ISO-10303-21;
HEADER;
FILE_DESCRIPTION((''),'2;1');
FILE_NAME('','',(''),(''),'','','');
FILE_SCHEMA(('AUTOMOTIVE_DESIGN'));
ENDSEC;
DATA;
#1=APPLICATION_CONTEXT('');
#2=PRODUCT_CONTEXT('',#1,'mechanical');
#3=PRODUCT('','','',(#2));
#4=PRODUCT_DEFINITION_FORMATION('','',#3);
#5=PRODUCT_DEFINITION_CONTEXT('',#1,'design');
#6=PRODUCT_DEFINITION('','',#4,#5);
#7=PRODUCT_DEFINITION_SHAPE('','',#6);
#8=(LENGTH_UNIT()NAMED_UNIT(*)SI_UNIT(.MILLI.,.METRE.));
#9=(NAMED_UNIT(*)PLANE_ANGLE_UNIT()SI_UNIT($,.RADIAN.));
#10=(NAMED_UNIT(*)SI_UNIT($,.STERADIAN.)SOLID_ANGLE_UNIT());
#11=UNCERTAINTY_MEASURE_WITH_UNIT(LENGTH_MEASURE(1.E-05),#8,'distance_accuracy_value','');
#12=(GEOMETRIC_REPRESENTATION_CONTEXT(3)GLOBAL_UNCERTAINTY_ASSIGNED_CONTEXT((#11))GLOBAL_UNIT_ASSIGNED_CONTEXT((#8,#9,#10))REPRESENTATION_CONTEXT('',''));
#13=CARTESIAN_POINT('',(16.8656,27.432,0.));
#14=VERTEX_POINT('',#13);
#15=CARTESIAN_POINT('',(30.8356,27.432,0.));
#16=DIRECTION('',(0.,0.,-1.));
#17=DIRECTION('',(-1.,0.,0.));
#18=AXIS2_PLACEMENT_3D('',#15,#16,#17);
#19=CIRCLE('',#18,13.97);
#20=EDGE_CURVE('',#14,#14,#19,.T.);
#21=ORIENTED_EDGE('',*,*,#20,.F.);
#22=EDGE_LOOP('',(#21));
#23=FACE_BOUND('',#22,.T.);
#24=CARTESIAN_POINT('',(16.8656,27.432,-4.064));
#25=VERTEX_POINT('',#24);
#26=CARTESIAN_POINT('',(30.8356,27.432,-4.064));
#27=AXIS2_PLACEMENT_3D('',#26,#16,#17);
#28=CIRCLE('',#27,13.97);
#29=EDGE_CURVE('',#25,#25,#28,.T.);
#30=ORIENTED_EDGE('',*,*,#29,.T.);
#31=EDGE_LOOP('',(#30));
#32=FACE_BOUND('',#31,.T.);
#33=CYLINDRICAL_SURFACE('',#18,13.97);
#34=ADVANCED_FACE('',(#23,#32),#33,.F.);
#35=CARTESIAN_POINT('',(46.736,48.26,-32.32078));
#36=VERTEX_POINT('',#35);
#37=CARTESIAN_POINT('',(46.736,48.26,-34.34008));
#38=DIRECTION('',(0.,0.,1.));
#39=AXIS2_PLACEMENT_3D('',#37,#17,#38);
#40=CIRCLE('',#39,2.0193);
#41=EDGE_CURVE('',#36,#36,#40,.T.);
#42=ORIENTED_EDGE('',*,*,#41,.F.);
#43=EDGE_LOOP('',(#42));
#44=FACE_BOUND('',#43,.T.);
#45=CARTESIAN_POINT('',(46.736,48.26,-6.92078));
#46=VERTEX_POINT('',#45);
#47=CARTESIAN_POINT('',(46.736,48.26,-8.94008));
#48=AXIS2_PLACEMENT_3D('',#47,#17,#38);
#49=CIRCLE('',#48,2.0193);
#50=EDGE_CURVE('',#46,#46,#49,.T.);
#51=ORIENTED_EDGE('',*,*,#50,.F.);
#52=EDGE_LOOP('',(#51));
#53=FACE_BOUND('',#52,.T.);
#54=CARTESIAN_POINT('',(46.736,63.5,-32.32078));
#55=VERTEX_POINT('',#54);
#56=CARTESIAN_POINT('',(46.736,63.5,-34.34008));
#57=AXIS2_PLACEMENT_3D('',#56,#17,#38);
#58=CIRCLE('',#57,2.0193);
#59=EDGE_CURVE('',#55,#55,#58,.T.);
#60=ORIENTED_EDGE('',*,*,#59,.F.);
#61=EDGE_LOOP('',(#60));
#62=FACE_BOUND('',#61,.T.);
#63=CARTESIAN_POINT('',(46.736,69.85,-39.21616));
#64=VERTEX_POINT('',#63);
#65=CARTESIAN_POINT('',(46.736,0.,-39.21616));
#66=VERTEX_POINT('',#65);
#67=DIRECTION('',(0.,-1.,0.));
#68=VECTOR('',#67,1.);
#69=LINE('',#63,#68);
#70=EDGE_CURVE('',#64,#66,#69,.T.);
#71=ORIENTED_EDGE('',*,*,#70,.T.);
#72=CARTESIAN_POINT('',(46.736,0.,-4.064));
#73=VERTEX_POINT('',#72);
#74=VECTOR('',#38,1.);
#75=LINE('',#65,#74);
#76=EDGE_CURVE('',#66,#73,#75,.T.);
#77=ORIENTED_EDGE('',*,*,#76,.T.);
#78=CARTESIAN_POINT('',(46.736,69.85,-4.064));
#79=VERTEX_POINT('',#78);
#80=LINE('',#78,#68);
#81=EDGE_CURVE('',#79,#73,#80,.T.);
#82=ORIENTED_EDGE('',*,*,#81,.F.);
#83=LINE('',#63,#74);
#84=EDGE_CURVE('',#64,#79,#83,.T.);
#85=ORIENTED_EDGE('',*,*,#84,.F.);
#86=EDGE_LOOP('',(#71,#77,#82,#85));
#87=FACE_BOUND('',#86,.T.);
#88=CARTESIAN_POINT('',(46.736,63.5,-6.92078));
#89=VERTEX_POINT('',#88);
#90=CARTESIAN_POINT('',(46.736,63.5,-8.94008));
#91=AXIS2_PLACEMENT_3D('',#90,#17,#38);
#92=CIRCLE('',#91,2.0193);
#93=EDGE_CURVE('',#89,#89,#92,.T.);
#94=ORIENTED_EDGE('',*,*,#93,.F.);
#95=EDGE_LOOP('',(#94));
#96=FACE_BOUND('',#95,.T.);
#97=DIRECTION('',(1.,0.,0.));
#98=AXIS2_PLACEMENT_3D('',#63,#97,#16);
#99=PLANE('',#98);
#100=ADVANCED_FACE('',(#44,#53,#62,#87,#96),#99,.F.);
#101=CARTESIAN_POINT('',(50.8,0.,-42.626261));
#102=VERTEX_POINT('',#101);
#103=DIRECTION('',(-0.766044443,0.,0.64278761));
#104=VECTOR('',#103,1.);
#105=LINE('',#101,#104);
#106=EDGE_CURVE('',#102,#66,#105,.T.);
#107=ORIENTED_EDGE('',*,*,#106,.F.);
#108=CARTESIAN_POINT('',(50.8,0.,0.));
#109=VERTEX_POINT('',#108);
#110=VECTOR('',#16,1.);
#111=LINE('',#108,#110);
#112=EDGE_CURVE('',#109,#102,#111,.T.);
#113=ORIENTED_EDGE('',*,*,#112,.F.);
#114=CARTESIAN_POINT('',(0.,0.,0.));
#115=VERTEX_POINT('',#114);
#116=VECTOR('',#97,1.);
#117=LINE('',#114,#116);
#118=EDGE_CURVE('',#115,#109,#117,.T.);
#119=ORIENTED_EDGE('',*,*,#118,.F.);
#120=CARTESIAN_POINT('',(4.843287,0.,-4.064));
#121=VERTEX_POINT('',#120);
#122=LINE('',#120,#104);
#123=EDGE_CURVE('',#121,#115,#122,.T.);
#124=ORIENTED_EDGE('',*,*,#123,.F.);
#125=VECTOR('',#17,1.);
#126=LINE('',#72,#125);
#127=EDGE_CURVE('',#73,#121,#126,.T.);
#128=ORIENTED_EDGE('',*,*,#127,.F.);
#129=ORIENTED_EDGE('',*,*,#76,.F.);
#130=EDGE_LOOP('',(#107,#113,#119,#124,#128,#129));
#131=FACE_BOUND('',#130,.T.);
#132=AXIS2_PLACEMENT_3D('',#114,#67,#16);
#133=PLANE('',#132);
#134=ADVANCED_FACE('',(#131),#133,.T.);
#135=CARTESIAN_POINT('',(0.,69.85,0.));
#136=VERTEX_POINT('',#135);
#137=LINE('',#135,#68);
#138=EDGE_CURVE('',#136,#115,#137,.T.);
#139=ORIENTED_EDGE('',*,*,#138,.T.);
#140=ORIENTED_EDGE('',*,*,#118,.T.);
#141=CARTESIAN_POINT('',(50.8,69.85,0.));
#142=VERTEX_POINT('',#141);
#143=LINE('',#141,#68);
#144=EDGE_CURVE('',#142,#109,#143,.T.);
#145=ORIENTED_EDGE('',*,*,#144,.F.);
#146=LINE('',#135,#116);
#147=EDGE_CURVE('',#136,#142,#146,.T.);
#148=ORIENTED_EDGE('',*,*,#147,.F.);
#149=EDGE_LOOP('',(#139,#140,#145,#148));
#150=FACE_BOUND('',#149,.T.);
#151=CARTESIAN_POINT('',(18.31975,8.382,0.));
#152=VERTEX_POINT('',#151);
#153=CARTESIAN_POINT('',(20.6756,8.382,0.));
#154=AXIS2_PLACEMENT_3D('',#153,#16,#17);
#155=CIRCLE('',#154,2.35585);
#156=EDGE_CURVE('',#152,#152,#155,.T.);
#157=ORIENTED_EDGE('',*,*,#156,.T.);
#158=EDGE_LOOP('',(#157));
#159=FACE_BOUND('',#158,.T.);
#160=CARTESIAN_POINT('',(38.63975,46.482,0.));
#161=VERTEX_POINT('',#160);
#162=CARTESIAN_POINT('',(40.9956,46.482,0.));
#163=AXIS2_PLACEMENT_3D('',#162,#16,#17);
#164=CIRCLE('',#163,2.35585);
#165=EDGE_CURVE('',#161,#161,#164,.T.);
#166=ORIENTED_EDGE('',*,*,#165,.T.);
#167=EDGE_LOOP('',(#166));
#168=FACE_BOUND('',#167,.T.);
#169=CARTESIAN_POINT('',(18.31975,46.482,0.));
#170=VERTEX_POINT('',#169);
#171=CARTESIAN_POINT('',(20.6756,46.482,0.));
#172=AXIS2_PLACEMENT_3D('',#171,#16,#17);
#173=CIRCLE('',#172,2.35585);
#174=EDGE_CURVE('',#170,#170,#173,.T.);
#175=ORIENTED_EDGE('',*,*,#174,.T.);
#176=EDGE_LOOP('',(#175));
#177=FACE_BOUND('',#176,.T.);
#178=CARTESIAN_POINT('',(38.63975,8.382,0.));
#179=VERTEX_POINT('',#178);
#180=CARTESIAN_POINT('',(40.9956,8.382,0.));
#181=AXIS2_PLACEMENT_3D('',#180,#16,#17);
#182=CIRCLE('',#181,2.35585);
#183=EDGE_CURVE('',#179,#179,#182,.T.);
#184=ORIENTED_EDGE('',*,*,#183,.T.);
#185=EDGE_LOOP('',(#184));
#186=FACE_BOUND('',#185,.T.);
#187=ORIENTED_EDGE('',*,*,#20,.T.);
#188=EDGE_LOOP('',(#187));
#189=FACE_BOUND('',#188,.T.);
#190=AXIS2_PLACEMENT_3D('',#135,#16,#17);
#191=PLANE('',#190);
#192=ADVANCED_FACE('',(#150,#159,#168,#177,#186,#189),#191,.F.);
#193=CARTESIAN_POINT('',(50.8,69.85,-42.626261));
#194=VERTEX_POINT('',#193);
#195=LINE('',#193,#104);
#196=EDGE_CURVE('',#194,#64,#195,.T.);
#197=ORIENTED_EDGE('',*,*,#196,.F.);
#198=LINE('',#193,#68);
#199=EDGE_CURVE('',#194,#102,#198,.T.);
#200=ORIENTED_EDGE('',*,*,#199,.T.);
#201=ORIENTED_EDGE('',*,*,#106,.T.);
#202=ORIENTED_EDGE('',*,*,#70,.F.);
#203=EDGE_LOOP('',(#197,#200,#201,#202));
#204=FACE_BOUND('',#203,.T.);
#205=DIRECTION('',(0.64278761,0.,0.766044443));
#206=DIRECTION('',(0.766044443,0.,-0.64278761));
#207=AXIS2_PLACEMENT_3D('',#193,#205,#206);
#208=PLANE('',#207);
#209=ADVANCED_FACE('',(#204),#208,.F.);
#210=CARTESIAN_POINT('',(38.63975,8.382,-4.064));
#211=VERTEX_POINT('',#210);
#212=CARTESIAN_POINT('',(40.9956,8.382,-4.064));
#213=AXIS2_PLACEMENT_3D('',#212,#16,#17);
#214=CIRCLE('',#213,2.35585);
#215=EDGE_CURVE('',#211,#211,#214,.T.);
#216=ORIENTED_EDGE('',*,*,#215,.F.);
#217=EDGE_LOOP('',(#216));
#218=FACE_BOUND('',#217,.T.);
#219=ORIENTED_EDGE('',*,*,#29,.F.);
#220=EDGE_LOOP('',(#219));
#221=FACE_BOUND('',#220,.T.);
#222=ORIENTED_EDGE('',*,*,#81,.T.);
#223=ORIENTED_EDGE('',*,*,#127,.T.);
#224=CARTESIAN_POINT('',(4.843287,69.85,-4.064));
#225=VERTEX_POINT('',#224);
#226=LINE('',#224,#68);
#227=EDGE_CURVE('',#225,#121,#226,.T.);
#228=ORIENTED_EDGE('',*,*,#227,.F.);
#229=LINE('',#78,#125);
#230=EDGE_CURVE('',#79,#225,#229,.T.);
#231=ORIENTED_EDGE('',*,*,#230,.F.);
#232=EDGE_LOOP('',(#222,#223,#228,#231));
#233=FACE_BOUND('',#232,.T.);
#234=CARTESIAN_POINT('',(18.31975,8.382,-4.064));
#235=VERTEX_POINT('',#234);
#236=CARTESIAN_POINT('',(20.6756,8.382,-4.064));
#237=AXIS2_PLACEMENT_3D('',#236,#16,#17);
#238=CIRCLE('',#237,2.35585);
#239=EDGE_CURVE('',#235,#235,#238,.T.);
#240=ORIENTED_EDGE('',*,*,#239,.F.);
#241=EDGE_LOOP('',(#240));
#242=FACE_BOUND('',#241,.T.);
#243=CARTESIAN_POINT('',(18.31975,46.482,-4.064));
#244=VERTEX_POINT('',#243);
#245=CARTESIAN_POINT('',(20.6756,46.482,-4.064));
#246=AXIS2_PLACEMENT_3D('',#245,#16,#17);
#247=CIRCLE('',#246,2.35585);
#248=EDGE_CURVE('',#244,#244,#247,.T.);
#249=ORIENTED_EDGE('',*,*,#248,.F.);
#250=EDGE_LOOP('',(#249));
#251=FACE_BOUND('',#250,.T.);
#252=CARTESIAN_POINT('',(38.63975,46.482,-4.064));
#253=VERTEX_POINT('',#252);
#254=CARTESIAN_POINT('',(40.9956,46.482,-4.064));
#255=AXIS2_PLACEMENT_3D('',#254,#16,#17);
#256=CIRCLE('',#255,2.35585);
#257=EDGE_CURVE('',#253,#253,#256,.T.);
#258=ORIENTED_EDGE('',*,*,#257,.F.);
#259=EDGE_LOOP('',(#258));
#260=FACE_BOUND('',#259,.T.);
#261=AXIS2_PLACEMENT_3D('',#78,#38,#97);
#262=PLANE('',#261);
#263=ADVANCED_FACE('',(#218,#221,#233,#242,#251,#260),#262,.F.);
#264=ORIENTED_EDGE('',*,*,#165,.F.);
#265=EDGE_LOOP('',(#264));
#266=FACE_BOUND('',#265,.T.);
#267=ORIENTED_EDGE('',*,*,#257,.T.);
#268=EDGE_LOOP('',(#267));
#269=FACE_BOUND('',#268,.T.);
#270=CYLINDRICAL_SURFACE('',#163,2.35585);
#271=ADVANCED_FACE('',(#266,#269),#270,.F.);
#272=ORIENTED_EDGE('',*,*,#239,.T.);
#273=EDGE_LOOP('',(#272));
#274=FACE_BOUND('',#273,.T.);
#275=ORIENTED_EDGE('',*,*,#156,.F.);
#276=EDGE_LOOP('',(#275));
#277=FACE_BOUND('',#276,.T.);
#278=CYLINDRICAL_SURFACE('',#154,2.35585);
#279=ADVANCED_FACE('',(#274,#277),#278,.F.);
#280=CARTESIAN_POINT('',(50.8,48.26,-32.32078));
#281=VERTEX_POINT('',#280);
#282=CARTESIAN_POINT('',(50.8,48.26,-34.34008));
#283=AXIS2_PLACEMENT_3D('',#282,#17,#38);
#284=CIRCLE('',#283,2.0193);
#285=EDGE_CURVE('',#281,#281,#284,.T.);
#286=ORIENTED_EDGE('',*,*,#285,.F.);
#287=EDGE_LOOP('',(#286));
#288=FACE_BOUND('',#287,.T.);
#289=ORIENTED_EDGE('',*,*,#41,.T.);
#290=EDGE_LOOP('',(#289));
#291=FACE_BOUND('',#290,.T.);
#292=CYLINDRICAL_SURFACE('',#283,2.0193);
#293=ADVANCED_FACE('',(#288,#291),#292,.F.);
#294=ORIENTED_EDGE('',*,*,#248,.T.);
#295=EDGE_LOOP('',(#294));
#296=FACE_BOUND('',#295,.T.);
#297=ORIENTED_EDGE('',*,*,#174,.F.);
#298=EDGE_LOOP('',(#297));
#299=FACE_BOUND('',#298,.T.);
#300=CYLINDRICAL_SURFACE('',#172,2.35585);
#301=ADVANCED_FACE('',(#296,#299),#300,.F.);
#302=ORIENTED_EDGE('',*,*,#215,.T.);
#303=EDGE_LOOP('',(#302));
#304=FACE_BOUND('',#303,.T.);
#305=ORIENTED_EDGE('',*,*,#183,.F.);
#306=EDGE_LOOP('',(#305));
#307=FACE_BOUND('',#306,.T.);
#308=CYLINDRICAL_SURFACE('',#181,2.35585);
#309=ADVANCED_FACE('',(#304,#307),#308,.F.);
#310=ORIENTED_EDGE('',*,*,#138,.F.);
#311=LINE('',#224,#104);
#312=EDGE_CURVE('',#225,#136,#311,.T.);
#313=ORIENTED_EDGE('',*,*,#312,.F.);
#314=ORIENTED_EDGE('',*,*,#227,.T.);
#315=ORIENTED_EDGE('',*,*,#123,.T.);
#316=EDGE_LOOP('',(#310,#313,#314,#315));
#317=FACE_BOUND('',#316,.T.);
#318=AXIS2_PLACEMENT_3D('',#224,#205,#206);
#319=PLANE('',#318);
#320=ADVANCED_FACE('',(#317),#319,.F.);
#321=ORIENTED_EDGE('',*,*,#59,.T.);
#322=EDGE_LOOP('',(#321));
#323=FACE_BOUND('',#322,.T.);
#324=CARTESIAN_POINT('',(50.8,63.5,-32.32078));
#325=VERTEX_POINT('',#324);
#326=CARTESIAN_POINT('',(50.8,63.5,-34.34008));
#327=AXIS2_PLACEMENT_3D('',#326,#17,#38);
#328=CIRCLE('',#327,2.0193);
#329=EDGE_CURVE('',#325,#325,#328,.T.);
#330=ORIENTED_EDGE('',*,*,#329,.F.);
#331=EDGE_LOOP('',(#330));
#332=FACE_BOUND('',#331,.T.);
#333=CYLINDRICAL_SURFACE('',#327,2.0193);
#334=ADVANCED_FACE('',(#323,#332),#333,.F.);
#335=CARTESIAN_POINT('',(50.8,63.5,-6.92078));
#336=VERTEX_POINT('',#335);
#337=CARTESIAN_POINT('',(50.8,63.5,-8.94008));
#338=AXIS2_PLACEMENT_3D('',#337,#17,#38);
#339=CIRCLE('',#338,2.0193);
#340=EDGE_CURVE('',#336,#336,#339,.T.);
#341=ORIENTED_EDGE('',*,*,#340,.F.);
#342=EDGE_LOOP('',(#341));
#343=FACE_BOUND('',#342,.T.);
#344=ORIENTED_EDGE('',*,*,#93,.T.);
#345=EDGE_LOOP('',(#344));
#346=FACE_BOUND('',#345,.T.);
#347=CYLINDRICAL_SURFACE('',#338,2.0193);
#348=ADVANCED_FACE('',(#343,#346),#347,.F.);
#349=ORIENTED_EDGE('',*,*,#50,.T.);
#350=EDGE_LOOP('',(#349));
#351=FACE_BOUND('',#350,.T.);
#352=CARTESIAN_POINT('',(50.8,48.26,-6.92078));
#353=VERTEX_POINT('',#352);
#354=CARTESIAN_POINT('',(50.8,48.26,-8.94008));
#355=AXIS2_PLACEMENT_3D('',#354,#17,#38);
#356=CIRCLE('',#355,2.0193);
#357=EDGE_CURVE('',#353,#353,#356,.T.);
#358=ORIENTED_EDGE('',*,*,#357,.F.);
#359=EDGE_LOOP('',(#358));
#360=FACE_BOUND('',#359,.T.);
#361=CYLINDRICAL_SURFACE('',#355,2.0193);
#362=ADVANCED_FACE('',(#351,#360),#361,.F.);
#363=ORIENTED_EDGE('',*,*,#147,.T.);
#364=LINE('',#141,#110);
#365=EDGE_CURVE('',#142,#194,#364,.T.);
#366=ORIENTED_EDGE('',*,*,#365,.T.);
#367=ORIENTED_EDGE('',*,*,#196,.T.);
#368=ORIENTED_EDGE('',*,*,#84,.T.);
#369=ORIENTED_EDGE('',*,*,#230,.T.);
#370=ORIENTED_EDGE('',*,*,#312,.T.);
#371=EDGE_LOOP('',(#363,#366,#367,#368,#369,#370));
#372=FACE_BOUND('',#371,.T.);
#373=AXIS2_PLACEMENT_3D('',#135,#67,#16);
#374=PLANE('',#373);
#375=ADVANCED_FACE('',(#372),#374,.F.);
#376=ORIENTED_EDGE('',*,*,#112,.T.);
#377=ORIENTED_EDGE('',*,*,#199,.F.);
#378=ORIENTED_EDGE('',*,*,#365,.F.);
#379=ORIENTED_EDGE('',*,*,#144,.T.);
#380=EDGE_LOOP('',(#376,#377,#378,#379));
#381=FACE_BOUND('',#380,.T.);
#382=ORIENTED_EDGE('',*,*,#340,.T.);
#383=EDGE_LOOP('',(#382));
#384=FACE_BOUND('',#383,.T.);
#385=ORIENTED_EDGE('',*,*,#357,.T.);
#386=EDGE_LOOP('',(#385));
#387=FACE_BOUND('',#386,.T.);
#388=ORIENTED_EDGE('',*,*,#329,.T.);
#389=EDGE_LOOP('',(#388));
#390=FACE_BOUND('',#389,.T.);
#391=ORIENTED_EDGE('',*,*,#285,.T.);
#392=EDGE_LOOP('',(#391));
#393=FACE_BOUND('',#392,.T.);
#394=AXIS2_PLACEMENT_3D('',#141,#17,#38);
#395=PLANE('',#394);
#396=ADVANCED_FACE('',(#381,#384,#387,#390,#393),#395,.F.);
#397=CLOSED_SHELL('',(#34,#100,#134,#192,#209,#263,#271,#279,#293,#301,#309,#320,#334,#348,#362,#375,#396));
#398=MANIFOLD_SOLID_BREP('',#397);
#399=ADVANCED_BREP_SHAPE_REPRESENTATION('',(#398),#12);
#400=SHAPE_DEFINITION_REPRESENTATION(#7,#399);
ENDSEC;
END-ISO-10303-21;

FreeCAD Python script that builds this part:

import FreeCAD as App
import Part
import Sketcher
Q = App.Units.Quantity

doc = App.newDocument("Part")
body = doc.addObject("PartDesign::Body", "Body")

# Sketch on XZ plane
sketch1 = body.newObject("Sketcher::SketchObject", "Sketch")
sketch1.AttachmentSupport = (doc.getObject("XZ_Plane"), [""])
sketch1.MapMode = "FlatFace"
sketch1.addGeometry([
    Part.LineSegment(App.Vector(0, 0, 0), App.Vector(51, 0, 0)),  # 0
    Part.LineSegment(App.Vector(51, 0, 0), App.Vector(51, -43, 0)),  # 1
    Part.LineSegment(App.Vector(51, -43, 0), App.Vector(47, -39, 0)),  # 2
    Part.LineSegment(App.Vector(47, -39, 0), App.Vector(47, -4, 0)),  # 3
    Part.LineSegment(App.Vector(47, -4, 0), App.Vector(5, -4, 0)),  # 4
    Part.LineSegment(App.Vector(5, -4, 0), App.Vector(0, 0, 0)),  # 5
], False)
sketch1.addConstraint([
    Sketcher.Constraint("Coincident", 0, 2, 1, 1),
    Sketcher.Constraint("Coincident", 1, 2, 2, 1),
    Sketcher.Constraint("Coincident", 2, 2, 3, 1),
    Sketcher.Constraint("Coincident", 3, 2, 4, 1),
    Sketcher.Constraint("Coincident", 4, 2, 5, 1),
    Sketcher.Constraint("Coincident", 5, 2, 0, 1),
    Sketcher.Constraint("Horizontal", 0),
    Sketcher.Constraint("Vertical", 1),
    Sketcher.Constraint("Vertical", 3),
    Sketcher.Constraint("Horizontal", 4),
    Sketcher.Constraint("Coincident", 5, 2, -1, 1),
    Sketcher.Constraint("Parallel", 2, 5),
    Sketcher.Constraint("DistanceX", 0, 1, 0, 2, Q("2 in")),
    Sketcher.Constraint("Angle", 2, Q("140 deg")),
    Sketcher.Constraint("DistanceX", -1, 1, 2, 2, Q("1.84 in")),
    Sketcher.Constraint("DistanceY", 3, 2, -1, 1, Q("0.16 in")),
    Sketcher.Constraint("DistanceY", 1, 2, 1, 1, 42.626261),
])
pad1 = body.newObject("PartDesign::Pad", "Pad")
pad1.Profile = sketch1
pad1.Length = Q("2.75 in")
pad1.Reversed = True

# Sketch on YZ plane
sketch2 = body.newObject("Sketcher::SketchObject", "Sketch001")
sketch2.AttachmentSupport = (doc.getObject("YZ_Plane"), [""])
sketch2.MapMode = "FlatFace"
sketch2.AttachmentOffset = App.Placement(App.Vector(0, 0, 1.84 * 25.4), App.Rotation())
sketch2.addGeometry([
    Part.Circle(App.Vector(63.5, -34.3, 0), App.Vector(0, 0, 1), 2),
    Part.Circle(App.Vector(63.5, -8.9, 0), App.Vector(0, 0, 1), 2),
    Part.Circle(App.Vector(48.3, -8.9, 0), App.Vector(0, 0, 1), 2),
    Part.Circle(App.Vector(48.3, -34.3, 0), App.Vector(0, 0, 1), 2),
], False)
sketch2.addConstraint([
    Sketcher.Constraint("Equal", 0, 1),
    Sketcher.Constraint("Equal", 1, 2),
    Sketcher.Constraint("Equal", 2, 3),
    Sketcher.Constraint("Horizontal", 1, 3, 2, 3),
    Sketcher.Constraint("Horizontal", 0, 3, 3, 3),
    Sketcher.Constraint("Vertical", 0, 3, 1, 3),
    Sketcher.Constraint("Vertical", 2, 3, 3, 3),
    Sketcher.Constraint("Diameter", 0, Q("0.159 in")),
    Sketcher.Constraint("DistanceY", 0, 3, 1, 3, Q("1 in")),
    Sketcher.Constraint("DistanceX", -1, 1, 0, 3, Q("2.5 in")),
    Sketcher.Constraint("DistanceX", -1, 1, 2, 3, Q("1.9 in")),
    Sketcher.Constraint("DistanceY", 0, 3, -1, 1, 34.34008),
])
pocket1 = body.newObject("PartDesign::Pocket", "Pocket")
pocket1.Profile = sketch2
pocket1.Type = "ThroughAll"
pocket1.Reversed = True

# Sketch on XY plane
sketch3 = body.newObject("Sketcher::SketchObject", "Sketch002")
sketch3.AttachmentSupport = (doc.getObject("XY_Plane"), [""])
sketch3.MapMode = "FlatFace"
sketch3.AttachmentOffset = App.Placement(App.Vector(0, 0, -0.16 * 25.4), App.Rotation())
sketch3.addGeometry([
    Part.Circle(App.Vector(41, 46.5, 0), App.Vector(0, 0, 1), 2.4),  # 0
    Part.Circle(App.Vector(20.7, 46.5, 0), App.Vector(0, 0, 1), 2.4),  # 1
    Part.Circle(App.Vector(20.7, 8.4, 0), App.Vector(0, 0, 1), 2.4),  # 2
    Part.Circle(App.Vector(41, 8.4, 0), App.Vector(0, 0, 1), 2.4),  # 3
    Part.Circle(App.Vector(30.8, 27.4, 0), App.Vector(0, 0, 1), 14),  # 4
], False)
sketch3.addConstraint([
    Sketcher.Constraint("Equal", 0, 1),
    Sketcher.Constraint("Equal", 1, 2),
    Sketcher.Constraint("Equal", 2, 3),
    Sketcher.Constraint("Horizontal", 0, 3, 1, 3),
    Sketcher.Constraint("Horizontal", 2, 3, 3, 3),
    Sketcher.Constraint("Vertical", 1, 3, 2, 3),
    Sketcher.Constraint("Vertical", 0, 3, 3, 3),
    Sketcher.Constraint("Diameter", 4, Q("1.1 in")),
    Sketcher.Constraint("Diameter", 0, Q("0.1855 in")),
    Sketcher.Constraint("DistanceX", 1, 3, 0, 3, Q("0.8 in")),
    Sketcher.Constraint("DistanceY", 2, 3, 1, 3, Q("1.5 in")),
    Sketcher.Constraint("DistanceX", 2, 3, 4, 3, Q("0.4 in")),
    Sketcher.Constraint("DistanceY", -1, 1, 0, 3, Q("1.83 in")),
    Sketcher.Constraint("DistanceY", -1, 1, 4, 3, Q("1.08 in")),
    Sketcher.Constraint("DistanceX", -1, 1, 0, 3, Q("1.614 in")),
])
pocket2 = body.newObject("PartDesign::Pocket", "Pocket001")
pocket2.Profile = sketch3
pocket2.Type = "ThroughAll"
pocket2.Reversed = True

doc.recompute()
